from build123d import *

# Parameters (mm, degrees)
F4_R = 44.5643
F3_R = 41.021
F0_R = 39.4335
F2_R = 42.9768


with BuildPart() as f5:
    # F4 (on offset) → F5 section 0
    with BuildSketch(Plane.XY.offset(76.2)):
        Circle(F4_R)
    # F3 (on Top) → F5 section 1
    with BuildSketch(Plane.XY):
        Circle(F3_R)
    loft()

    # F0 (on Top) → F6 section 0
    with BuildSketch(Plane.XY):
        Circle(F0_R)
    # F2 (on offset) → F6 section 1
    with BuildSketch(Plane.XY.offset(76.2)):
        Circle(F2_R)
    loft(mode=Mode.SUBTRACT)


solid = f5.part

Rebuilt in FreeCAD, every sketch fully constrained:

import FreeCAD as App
import Part
import Sketcher
from FreeCAD import Vector
Q = App.Units.Quantity

doc = App.newDocument("Part")
params = doc.addObject("Spreadsheet::Sheet", "Params")
for row, (alias, value) in enumerate([
    ("sketch1_diameter", "3.509 in"),
    ("sketch2_diameter", "3.23 in"),
    ("sketch3_diameter", "3.105 in"),
    ("sketch4_diameter", "3.384 in"),
], start=1):
    params.set(f"A{row}", alias)
    params.set(f"B{row}", "=" + value)
    params.setAlias(f"B{row}", alias)

body = doc.addObject("PartDesign::Body", "Body")

# Sketch on XY plane
sketch1 = body.newObject("Sketcher::SketchObject", "Sketch")
sketch1.AttachmentSupport = (doc.getObject("XY_Plane"), [""])
sketch1.MapMode = "FlatFace"
sketch1.AttachmentOffset = App.Placement(Vector(0, 0, 3 * 25.4), App.Rotation())
sketch1.addGeometry(Part.Circle(Vector(0, 0, 0), Vector(0, 0, 1), 45), False)
sketch1.addConstraint([
    Sketcher.Constraint("Coincident", 0, 3, -1, 1),
    Sketcher.Constraint("Diameter", 0, Q("3.509 in")),
])
sketch1.setExpression("Constraints[1]", "Params.sketch1_diameter")

# Sketch on XY plane
sketch2 = body.newObject("Sketcher::SketchObject", "Sketch001")
sketch2.AttachmentSupport = (doc.getObject("XY_Plane"), [""])
sketch2.MapMode = "FlatFace"
sketch2.addGeometry(Part.Circle(Vector(0, 0, 0), Vector(0, 0, 1), 41), False)
sketch2.addConstraint([
    Sketcher.Constraint("Coincident", 0, 3, -1, 1),
    Sketcher.Constraint("Diameter", 0, Q("3.23 in")),
])
sketch2.setExpression("Constraints[1]", "Params.sketch2_diameter")

additiveloft = body.newObject("PartDesign::AdditiveLoft", "AdditiveLoft")
additiveloft.Profile = sketch1
additiveloft.Sections = [sketch2]

# Sketch on XY plane
sketch3 = body.newObject("Sketcher::SketchObject", "Sketch002")
sketch3.AttachmentSupport = (doc.getObject("XY_Plane"), [""])
sketch3.MapMode = "FlatFace"
sketch3.addGeometry(Part.Circle(Vector(0, 0, 0), Vector(0, 0, 1), 39), False)
sketch3.addConstraint([
    Sketcher.Constraint("Coincident", 0, 3, -1, 1),
    Sketcher.Constraint("Diameter", 0, Q("3.105 in")),
])
sketch3.setExpression("Constraints[1]", "Params.sketch3_diameter")

# Sketch on XY plane
sketch4 = body.newObject("Sketcher::SketchObject", "Sketch003")
sketch4.AttachmentSupport = (doc.getObject("XY_Plane"), [""])
sketch4.MapMode = "FlatFace"
sketch4.AttachmentOffset = App.Placement(Vector(0, 0, 3 * 25.4), App.Rotation())
sketch4.addGeometry(Part.Circle(Vector(0, 0, 0), Vector(0, 0, 1), 43), False)
sketch4.addConstraint([
    Sketcher.Constraint("Coincident", 0, 3, -1, 1),
    Sketcher.Constraint("Diameter", 0, Q("3.384 in")),
])
sketch4.setExpression("Constraints[1]", "Params.sketch4_diameter")

subtractiveloft = body.newObject("PartDesign::SubtractiveLoft", "SubtractiveLoft")
subtractiveloft.Profile = sketch3
subtractiveloft.Sections = [sketch4]

doc.recompute()
